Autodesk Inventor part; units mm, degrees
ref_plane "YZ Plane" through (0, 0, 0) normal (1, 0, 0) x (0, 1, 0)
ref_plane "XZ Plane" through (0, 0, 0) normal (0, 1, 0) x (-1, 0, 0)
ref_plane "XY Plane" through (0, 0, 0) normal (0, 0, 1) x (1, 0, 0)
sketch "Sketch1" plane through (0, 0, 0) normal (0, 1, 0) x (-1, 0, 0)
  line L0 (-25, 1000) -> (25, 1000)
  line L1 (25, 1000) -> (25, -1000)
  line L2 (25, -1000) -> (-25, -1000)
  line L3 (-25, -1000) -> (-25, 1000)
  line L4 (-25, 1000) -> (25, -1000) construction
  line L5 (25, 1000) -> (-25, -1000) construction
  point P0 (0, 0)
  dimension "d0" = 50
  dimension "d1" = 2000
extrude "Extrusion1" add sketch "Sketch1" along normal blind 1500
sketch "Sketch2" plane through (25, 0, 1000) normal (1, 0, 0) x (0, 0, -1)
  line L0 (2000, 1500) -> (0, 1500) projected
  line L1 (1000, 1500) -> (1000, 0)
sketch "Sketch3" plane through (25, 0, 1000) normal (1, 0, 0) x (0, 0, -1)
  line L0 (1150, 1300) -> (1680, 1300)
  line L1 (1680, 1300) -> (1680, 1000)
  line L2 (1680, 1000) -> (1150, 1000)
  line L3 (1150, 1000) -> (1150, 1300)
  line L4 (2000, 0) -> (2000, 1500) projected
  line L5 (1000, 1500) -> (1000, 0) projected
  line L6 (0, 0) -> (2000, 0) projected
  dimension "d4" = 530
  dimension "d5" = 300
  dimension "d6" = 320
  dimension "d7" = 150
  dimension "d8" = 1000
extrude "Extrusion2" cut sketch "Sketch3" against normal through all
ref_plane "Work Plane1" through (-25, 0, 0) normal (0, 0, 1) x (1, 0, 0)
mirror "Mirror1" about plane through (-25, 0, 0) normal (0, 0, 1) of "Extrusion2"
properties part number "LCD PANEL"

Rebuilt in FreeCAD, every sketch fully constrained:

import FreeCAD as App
import Part
import Sketcher

V = App.Vector
Q = App.Units.Quantity

doc = App.newDocument("Part")
body = doc.addObject("PartDesign::Body", "Body")

# Sketch on XZ plane
sketch1 = body.newObject("Sketcher::SketchObject", "Sketch")
sketch1.AttachmentSupport = (doc.getObject("XZ_Plane"), [""])
sketch1.MapMode = "FlatFace"
sketch1.addGeometry([
    Part.LineSegment(V(-25, 1000, 0), V(25, 1000, 0)),
    Part.LineSegment(V(25, 1000, 0), V(25, -1000, 0)),
    Part.LineSegment(V(25, -1000, 0), V(-25, -1000, 0)),
    Part.LineSegment(V(-25, -1000, 0), V(-25, 1000, 0)),
], False)
sketch1.addConstraint([
    Sketcher.Constraint("Coincident", 0, 2, 1, 1),
    Sketcher.Constraint("Coincident", 1, 2, 2, 1),
    Sketcher.Constraint("Coincident", 2, 2, 3, 1),
    Sketcher.Constraint("Coincident", 3, 2, 0, 1),
    Sketcher.Constraint("Horizontal", 0),
    Sketcher.Constraint("Vertical", 1),
    Sketcher.Constraint("Horizontal", 2),
    Sketcher.Constraint("Vertical", 3),
    Sketcher.Constraint("Symmetric", 0, 2, 2, 2, -1, 1),
    Sketcher.Constraint("DistanceX", 0, 1, 0, 2, Q("50 mm")),
    Sketcher.Constraint("DistanceY", 1, 2, 1, 1, Q("2000 mm")),
])
pad1 = body.newObject("PartDesign::Pad", "Pad")
pad1.Profile = sketch1
pad1.Length = 1500
pad1.Reversed = True

# Sketch on YZ plane
sketch2 = body.newObject("Sketcher::SketchObject", "Sketch001")
sketch2.AttachmentSupport = (doc.getObject("YZ_Plane"), [""])
sketch2.MapMode = "FlatFace"
sketch2.AttachmentOffset = App.Placement(V(0, 0, 25), App.Rotation())
sketch2.addGeometry([
    Part.LineSegment(V(1300, -680, 0), V(1300, -150, 0)),
    Part.LineSegment(V(1300, -150, 0), V(1000, -150, 0)),
    Part.LineSegment(V(1000, -150, 0), V(1000, -680, 0)),
    Part.LineSegment(V(1000, -680, 0), V(1300, -680, 0)),
], False)
sketch2.addConstraint([
    Sketcher.Constraint("Coincident", 0, 2, 1, 1),
    Sketcher.Constraint("Coincident", 1, 2, 2, 1),
    Sketcher.Constraint("Coincident", 2, 2, 3, 1),
    Sketcher.Constraint("Coincident", 3, 2, 0, 1),
    Sketcher.Constraint("Vertical", 0),
    Sketcher.Constraint("Horizontal", 1),
    Sketcher.Constraint("Vertical", 2),
    Sketcher.Constraint("Horizontal", 3),
    Sketcher.Constraint("DistanceX", 1, 2, 1, 1, Q("300 mm")),
    Sketcher.Constraint("DistanceY", 0, 1, 0, 2, Q("530 mm")),
    Sketcher.Constraint("DistanceY", 0, 2, -1, 1, Q("150 mm")),
    Sketcher.Constraint("DistanceX", -1, 1, 1, 2, Q("1000 mm")),
])
pocket1 = body.newObject("PartDesign::Pocket", "Pocket")
pocket1.Profile = sketch2
pocket1.Type = "ThroughAll"
doc.recompute()

mirrored = body.newObject("PartDesign::Mirrored", "Mirrored")
mirrored.Originals = [pocket1]
mirrored.MirrorPlane = (doc.getObject("XY_Plane"), [""])
body.Tip = mirrored

doc.recompute()
